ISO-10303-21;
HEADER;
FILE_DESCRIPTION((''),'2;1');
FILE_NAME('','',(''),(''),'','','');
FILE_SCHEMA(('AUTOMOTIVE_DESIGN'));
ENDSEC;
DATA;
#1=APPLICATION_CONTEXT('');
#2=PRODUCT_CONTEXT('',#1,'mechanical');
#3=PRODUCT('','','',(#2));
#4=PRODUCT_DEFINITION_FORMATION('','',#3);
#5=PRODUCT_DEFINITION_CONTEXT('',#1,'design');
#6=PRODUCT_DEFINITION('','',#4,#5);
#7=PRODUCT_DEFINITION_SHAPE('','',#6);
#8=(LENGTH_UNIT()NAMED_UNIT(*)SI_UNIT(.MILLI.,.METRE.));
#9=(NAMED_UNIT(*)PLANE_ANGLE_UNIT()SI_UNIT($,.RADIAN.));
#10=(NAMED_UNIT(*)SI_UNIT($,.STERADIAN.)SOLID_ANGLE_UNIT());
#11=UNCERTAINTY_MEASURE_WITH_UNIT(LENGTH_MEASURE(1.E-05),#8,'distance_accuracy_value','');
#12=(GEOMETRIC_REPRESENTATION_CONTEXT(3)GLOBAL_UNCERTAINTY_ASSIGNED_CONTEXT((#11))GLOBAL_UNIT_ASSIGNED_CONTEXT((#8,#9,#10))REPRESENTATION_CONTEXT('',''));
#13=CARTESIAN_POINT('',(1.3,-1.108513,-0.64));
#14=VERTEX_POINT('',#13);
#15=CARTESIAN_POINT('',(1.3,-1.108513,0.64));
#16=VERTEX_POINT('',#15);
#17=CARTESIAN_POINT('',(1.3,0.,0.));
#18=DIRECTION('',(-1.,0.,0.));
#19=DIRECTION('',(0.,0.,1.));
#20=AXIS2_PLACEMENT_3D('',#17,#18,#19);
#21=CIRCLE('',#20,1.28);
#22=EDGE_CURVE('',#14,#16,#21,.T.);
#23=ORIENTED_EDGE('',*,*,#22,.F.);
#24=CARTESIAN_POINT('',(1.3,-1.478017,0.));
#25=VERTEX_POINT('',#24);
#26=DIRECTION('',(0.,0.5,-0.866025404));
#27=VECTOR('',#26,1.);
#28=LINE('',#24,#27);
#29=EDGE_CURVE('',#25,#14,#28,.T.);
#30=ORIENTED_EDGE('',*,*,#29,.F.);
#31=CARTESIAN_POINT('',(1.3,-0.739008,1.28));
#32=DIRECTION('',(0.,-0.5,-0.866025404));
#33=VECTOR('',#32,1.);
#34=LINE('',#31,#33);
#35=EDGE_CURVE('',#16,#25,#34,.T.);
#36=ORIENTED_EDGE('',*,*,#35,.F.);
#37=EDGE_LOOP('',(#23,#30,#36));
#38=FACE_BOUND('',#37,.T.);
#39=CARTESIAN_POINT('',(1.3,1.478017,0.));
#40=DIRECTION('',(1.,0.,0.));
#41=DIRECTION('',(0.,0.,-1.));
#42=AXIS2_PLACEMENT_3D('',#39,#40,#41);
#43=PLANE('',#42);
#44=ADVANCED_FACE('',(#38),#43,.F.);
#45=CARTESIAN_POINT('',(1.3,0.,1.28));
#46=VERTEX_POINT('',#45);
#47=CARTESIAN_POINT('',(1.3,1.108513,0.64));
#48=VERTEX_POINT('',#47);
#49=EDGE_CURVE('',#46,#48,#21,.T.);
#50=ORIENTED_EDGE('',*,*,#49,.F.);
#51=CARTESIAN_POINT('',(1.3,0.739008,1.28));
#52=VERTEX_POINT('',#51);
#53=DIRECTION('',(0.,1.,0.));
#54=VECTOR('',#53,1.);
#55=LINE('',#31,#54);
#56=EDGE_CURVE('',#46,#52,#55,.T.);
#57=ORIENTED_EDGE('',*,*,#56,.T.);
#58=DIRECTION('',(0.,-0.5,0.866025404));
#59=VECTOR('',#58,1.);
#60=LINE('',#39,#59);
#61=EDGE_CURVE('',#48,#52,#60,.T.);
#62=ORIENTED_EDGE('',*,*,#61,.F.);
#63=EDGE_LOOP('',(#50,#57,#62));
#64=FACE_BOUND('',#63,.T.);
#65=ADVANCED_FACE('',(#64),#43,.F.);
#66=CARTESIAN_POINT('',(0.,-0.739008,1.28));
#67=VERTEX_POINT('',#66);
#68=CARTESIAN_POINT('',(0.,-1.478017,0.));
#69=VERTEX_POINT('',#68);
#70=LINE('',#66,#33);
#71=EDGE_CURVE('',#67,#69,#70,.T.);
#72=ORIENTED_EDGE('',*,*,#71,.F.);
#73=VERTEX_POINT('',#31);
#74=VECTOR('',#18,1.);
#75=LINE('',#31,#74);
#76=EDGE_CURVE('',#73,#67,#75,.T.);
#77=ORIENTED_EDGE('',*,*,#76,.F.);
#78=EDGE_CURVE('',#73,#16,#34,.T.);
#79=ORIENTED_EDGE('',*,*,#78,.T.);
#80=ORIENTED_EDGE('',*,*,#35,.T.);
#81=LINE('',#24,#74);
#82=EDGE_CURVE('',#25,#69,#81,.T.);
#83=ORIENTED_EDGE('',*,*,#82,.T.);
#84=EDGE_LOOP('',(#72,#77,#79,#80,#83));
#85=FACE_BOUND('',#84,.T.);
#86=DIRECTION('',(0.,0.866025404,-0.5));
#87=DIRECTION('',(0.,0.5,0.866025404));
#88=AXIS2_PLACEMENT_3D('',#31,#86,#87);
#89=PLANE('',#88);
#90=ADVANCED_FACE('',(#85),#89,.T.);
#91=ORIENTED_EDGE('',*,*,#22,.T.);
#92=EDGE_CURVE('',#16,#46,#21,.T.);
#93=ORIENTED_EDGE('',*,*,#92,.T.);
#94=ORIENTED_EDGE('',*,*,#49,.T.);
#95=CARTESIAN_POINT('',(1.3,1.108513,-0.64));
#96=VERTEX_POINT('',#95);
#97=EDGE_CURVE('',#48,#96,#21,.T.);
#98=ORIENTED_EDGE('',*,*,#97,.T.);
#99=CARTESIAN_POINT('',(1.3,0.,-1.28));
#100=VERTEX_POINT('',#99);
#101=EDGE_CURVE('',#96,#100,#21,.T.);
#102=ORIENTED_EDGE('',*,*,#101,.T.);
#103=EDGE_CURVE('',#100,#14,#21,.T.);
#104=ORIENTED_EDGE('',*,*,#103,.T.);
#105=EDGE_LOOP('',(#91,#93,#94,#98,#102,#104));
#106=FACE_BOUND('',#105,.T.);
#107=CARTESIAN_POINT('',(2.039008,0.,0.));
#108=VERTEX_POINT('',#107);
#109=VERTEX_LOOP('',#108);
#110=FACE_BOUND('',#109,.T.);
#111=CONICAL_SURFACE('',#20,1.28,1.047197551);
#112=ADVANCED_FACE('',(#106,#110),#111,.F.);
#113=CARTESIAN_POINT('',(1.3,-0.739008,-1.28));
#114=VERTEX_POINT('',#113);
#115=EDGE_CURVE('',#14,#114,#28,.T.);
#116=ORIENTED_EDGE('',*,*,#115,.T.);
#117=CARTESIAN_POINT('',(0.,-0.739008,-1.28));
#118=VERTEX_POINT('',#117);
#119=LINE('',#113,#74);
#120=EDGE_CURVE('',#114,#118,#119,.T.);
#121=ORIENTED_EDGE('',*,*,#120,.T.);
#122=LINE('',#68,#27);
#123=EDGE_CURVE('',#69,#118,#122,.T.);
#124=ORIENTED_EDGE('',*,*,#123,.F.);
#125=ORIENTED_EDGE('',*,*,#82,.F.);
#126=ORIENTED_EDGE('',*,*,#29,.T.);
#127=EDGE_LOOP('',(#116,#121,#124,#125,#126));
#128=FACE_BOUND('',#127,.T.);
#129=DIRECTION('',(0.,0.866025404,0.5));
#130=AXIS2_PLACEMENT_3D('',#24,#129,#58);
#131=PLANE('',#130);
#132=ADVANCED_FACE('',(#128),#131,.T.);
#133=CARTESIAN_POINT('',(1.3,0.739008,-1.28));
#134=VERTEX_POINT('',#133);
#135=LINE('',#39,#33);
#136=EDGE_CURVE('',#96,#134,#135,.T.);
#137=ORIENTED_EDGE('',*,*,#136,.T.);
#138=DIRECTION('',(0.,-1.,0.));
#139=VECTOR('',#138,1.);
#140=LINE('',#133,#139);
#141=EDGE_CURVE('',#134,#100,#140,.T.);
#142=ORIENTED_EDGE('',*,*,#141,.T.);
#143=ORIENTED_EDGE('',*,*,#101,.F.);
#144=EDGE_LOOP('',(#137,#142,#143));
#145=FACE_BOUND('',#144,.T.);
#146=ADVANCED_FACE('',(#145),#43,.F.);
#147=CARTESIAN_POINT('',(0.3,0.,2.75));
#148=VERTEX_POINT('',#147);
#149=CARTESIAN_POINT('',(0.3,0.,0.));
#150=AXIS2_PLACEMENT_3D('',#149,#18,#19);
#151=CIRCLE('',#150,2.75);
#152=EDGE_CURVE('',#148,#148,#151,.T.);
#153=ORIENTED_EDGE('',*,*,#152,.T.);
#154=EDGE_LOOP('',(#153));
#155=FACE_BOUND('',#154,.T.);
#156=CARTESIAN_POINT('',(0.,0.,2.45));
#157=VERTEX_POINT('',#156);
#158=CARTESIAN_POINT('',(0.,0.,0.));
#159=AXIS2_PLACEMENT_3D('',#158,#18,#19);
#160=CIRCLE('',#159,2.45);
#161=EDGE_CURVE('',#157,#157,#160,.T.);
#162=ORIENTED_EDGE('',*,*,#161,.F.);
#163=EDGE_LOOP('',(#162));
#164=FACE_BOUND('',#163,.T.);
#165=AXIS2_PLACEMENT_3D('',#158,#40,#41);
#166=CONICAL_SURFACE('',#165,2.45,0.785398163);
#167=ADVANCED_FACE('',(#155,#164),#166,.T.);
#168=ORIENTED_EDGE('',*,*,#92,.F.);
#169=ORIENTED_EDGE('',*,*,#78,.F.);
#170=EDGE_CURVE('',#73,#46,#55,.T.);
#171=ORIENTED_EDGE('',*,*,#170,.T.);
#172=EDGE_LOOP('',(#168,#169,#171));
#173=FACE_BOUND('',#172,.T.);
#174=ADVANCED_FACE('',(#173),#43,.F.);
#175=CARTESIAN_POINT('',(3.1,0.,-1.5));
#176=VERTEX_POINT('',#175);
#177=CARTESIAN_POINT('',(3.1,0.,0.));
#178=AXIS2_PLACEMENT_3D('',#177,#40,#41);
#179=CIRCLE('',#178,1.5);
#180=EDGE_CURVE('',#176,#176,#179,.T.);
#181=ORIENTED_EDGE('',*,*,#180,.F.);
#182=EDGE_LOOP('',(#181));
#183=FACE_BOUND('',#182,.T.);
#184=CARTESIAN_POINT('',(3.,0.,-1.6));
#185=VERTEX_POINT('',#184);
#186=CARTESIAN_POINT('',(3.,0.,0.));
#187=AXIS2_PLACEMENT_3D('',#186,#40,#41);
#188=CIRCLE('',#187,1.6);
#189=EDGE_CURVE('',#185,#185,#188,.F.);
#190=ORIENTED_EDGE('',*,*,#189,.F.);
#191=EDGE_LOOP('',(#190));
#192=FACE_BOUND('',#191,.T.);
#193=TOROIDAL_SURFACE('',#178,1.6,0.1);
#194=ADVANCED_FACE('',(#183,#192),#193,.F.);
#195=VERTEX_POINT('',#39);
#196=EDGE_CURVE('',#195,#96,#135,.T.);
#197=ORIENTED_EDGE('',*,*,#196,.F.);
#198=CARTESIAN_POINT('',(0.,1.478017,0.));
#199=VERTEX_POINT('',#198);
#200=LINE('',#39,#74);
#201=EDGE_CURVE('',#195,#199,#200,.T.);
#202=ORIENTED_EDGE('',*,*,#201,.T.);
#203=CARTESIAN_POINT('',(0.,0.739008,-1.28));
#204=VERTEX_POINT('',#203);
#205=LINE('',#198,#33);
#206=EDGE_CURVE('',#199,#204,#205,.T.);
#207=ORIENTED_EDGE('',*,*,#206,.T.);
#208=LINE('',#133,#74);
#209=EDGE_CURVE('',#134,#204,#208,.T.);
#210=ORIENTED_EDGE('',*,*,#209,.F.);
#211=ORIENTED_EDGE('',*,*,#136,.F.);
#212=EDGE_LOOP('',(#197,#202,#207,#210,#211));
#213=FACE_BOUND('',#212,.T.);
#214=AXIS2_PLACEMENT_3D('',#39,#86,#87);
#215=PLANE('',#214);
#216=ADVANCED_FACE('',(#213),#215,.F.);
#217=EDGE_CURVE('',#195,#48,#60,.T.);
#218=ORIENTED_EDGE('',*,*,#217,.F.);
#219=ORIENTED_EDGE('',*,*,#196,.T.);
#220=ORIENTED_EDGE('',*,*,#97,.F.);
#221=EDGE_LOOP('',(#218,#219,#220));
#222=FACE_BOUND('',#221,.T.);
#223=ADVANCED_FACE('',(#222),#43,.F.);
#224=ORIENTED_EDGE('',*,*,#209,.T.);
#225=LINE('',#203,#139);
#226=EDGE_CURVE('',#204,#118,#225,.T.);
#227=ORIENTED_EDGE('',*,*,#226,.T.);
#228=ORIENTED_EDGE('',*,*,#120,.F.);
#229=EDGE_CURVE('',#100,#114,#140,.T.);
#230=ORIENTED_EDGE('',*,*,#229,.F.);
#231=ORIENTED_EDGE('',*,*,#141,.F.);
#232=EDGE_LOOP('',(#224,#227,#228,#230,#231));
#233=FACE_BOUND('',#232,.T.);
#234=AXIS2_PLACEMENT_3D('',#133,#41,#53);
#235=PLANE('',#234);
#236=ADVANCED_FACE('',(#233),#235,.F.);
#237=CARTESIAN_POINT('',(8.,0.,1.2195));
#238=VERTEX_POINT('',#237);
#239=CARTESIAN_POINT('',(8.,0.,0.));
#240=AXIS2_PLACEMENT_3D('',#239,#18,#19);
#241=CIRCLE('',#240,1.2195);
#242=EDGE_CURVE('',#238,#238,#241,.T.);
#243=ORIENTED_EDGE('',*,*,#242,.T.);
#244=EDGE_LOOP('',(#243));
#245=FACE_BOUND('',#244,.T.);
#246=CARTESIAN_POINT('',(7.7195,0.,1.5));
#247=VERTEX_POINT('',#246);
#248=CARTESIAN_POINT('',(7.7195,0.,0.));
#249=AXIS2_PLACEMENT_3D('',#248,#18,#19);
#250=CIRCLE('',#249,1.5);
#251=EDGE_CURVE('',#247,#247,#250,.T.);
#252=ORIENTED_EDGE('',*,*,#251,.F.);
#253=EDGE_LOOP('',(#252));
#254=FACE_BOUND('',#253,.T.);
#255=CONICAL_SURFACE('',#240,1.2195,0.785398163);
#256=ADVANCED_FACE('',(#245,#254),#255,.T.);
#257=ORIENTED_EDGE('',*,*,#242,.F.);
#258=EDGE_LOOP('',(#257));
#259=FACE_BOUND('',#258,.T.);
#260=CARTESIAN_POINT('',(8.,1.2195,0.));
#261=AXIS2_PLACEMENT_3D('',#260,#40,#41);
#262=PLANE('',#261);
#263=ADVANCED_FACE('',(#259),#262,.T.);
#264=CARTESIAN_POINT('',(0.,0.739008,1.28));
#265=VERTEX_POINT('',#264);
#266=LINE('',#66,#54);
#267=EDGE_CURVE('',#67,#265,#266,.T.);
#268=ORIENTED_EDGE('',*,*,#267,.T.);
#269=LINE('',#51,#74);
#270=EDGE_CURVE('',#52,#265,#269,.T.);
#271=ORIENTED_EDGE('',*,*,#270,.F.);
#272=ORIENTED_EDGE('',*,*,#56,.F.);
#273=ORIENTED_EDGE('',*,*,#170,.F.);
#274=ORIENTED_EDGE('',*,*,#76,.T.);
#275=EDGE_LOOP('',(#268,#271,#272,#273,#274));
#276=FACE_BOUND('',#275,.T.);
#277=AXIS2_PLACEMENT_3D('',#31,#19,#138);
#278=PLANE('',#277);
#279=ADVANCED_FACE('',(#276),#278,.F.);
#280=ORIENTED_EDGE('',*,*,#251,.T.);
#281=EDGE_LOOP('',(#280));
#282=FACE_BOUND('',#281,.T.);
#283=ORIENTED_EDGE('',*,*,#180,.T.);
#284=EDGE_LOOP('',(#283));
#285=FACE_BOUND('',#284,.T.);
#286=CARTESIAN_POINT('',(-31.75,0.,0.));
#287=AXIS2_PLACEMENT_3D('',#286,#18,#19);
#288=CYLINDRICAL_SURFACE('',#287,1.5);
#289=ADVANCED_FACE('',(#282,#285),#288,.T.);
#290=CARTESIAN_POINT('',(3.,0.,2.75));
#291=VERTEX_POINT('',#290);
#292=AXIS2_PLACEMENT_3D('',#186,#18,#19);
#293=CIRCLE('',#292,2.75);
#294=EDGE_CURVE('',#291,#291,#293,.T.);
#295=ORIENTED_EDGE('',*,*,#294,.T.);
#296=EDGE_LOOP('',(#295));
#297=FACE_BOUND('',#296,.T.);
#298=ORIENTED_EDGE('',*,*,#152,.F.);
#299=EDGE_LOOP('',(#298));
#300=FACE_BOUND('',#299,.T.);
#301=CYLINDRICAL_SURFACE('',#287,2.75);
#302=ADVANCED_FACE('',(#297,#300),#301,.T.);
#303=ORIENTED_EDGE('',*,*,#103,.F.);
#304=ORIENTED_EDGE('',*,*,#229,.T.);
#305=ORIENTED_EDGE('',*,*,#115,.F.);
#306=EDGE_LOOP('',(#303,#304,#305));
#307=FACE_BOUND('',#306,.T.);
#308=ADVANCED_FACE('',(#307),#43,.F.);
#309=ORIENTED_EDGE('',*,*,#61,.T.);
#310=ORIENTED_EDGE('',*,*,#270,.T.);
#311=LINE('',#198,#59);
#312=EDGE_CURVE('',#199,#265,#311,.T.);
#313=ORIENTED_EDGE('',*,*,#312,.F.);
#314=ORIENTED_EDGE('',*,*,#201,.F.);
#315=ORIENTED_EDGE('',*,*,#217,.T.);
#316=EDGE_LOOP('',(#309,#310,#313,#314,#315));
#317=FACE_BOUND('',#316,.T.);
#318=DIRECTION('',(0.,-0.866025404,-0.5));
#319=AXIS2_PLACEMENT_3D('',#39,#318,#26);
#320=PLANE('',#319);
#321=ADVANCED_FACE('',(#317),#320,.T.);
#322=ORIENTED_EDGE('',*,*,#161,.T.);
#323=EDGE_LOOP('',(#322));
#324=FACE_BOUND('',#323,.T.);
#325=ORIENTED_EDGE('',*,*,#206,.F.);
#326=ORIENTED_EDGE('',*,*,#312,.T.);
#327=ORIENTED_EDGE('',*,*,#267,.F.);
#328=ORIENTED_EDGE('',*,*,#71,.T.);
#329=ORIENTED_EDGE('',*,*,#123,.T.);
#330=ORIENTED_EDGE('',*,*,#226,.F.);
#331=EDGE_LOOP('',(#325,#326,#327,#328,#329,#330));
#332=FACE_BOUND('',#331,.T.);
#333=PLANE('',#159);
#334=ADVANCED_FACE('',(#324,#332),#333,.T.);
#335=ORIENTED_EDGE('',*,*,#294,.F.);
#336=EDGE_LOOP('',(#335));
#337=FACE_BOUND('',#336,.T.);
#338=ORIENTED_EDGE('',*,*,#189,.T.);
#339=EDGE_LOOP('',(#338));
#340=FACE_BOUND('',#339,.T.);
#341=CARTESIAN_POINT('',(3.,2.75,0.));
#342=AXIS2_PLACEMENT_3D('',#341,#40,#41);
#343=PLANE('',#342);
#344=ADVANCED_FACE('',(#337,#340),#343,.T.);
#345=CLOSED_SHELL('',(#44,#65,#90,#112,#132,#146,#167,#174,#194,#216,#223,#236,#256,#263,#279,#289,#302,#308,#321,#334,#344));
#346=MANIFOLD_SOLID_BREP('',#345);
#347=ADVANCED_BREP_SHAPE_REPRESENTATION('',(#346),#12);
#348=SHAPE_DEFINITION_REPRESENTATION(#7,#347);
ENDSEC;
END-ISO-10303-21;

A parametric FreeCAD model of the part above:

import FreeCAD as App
import Part
import Sketcher
Q = App.Units.Quantity


def edges_at(feature, points):
    """Names of the edges that pass closest to the given points."""
    edges = feature.Shape.Edges
    near = lambda p: min(range(len(edges)), key=lambda i: edges[i].distToShape(Part.Vertex(*p))[0])
    return sorted({f"Edge{near(p) + 1}" for p in points})

doc = App.newDocument("Part")
params = doc.addObject("Spreadsheet::Sheet", "Params")
for row, (alias, value) in enumerate([
    ("sketch1_width", "8 mm"),
    ("sketch1_width2", "2.7 mm"),
    ("sketch1_height", "2.45 mm"),
    ("sketch1_height2", "1.25 mm"),
    ("revolution_angle", "360 deg"),
    ("fillet_radius", "0.1 mm"),
    ("sketch2_width", "1.3 mm"),
    ("sketch2_height", "1.28 mm"),
    ("groove_angle", "360 deg"),
    ("pocket1_length", "1.3 mm"),
], start=1):
    params.set(f"A{row}", alias)
    params.set(f"B{row}", "=" + value)
    params.setAlias(f"B{row}", alias)

body = doc.addObject("PartDesign::Body", "Body")

sketch1 = body.newObject("Sketcher::SketchObject", "Sketch")
sketch1.AttachmentSupport = (doc.getObject("XY_Plane"), [""])
sketch1.MapMode = "FlatFace"
sketch1.addGeometry([
    Part.LineSegment(App.Vector(0, 2.45, 0), App.Vector(0, 0, 0)),
    Part.LineSegment(App.Vector(0, 0, 0), App.Vector(8, 0, 0)),
    Part.LineSegment(App.Vector(8, 0, 0), App.Vector(8, 1.22, 0)),
    Part.LineSegment(App.Vector(8, 1.22, 0), App.Vector(7.72, 1.5, 0)),
    Part.LineSegment(App.Vector(7.72, 1.5, 0), App.Vector(3, 1.5, 0)),
    Part.LineSegment(App.Vector(3, 1.5, 0), App.Vector(3, 2.75, 0)),
    Part.LineSegment(App.Vector(3, 2.75, 0), App.Vector(0.3, 2.75, 0)),
    Part.LineSegment(App.Vector(0.3, 2.75, 0), App.Vector(0, 2.45, 0)),
], False)
sketch1.addConstraint([
    Sketcher.Constraint("Coincident", 0, 2, 1, 1),
    Sketcher.Constraint("Coincident", 1, 2, 2, 1),
    Sketcher.Constraint("Coincident", 2, 2, 3, 1),
    Sketcher.Constraint("Coincident", 3, 2, 4, 1),
    Sketcher.Constraint("Coincident", 4, 2, 5, 1),
    Sketcher.Constraint("Coincident", 5, 2, 6, 1),
    Sketcher.Constraint("Coincident", 6, 2, 7, 1),
    Sketcher.Constraint("Coincident", 7, 2, 0, 1),
    Sketcher.Constraint("Vertical", 0),
    Sketcher.Constraint("Horizontal", 1),
    Sketcher.Constraint("Vertical", 2),
    Sketcher.Constraint("Horizontal", 4),
    Sketcher.Constraint("Vertical", 5),
    Sketcher.Constraint("Horizontal", 6),
    Sketcher.Constraint("Coincident", 0, 2, -1, 1),
    Sketcher.Constraint("Perpendicular", 3, 7),
    Sketcher.Constraint("DistanceX", 1, 1, 1, 2, Q("8 mm")),
    Sketcher.Constraint("Angle", 3, Q("135 deg")),
    Sketcher.Constraint("DistanceX", 6, 2, 6, 1, Q("2.7 mm")),
    Sketcher.Constraint("DistanceX", -1, 1, 4, 2, Q("3 mm")),
    Sketcher.Constraint("DistanceY", 0, 2, 0, 1, Q("2.45 mm")),
    Sketcher.Constraint("DistanceY", 5, 1, 5, 2, Q("1.25 mm")),
    Sketcher.Constraint("DistanceX", 4, 2, 4, 1, Q("4.7195 mm")),
])
sketch1.setExpression("Constraints[16]", "Params.sketch1_width")
sketch1.setExpression("Constraints[18]", "Params.sketch1_width2")
sketch1.setExpression("Constraints[20]", "Params.sketch1_height")
sketch1.setExpression("Constraints[21]", "Params.sketch1_height2")
revolution = body.newObject("PartDesign::Revolution", "Revolution")
revolution.Profile = sketch1
revolution.ReferenceAxis = (sketch1, ["H_Axis"])
revolution.setExpression("Angle", "Params.revolution_angle")
doc.recompute()

fillet = body.newObject("PartDesign::Fillet", "Fillet")
fillet.Base = (revolution, edges_at(revolution, [(3, -1.5, 0)]))
fillet.setExpression("Radius", "Params.fillet_radius")

sketch2 = body.newObject("Sketcher::SketchObject", "Sketch001")
sketch2.AttachmentSupport = (doc.getObject("XY_Plane"), [""])
sketch2.MapMode = "FlatFace"
sketch2.addGeometry([
    Part.LineSegment(App.Vector(1.3, 1.3, 0), App.Vector(0, 1.3, 0)),
    Part.LineSegment(App.Vector(0, 1.3, 0), App.Vector(0, 0, 0)),
    Part.LineSegment(App.Vector(0, 0, 0), App.Vector(2, 0, 0)),
    Part.LineSegment(App.Vector(2, 0, 0), App.Vector(1.3, 1.3, 0)),
], False)
sketch2.addConstraint([
    Sketcher.Constraint("Coincident", 0, 2, 1, 1),
    Sketcher.Constraint("Coincident", 1, 2, 2, 1),
    Sketcher.Constraint("Coincident", 2, 2, 3, 1),
    Sketcher.Constraint("Coincident", 3, 2, 0, 1),
    Sketcher.Constraint("Horizontal", 0),
    Sketcher.Constraint("Vertical", 1),
    Sketcher.Constraint("Horizontal", 2),
    Sketcher.Constraint("Coincident", 1, 2, -1, 1),
    Sketcher.Constraint("Angle", 3, Q("120 deg")),
    Sketcher.Constraint("DistanceX", 0, 2, 0, 1, Q("1.3 mm")),
    Sketcher.Constraint("DistanceY", 1, 2, 1, 1, Q("1.28 mm")),
])
sketch2.setExpression("Constraints[9]", "Params.sketch2_width")
sketch2.setExpression("Constraints[10]", "Params.sketch2_height")
groove = body.newObject("PartDesign::Groove", "Groove")
groove.Profile = sketch2
groove.ReferenceAxis = (sketch2, ["H_Axis"])
groove.setExpression("Angle", "Params.groove_angle")

sketch3 = body.newObject("Sketcher::SketchObject", "Sketch002")
sketch3.AttachmentSupport = (doc.getObject("YZ_Plane"), [""])
sketch3.MapMode = "FlatFace"
sketch3.addGeometry([
    Part.LineSegment(App.Vector(1.5, 0, 0), App.Vector(0.7, -1.3, 0)),
    Part.LineSegment(App.Vector(0.7, -1.3, 0), App.Vector(-0.7, -1.3, 0)),
    Part.LineSegment(App.Vector(-0.7, -1.3, 0), App.Vector(-1.5, 0, 0)),
    Part.LineSegment(App.Vector(-1.5, 0, 0), App.Vector(-0.7, 1.3, 0)),
    Part.LineSegment(App.Vector(-0.7, 1.3, 0), App.Vector(0.7, 1.3, 0)),
    Part.LineSegment(App.Vector(0.7, 1.3, 0), App.Vector(1.5, 0, 0)),
], False)
sketch3.addConstraint([
    Sketcher.Constraint("Coincident", 0, 2, 1, 1),
    Sketcher.Constraint("Coincident", 1, 2, 2, 1),
    Sketcher.Constraint("Coincident", 2, 2, 3, 1),
    Sketcher.Constraint("Coincident", 3, 2, 4, 1),
    Sketcher.Constraint("Coincident", 4, 2, 5, 1),
    Sketcher.Constraint("Coincident", 5, 2, 0, 1),
    Sketcher.Constraint("Horizontal", 1),
    Sketcher.Constraint("Horizontal", 4),
    Sketcher.Constraint("Symmetric", 0, 2, 3, 2, -1, 1),
    Sketcher.Constraint("Symmetric", 2, 2, 5, 2, -1, 1),
    Sketcher.Constraint("PointOnObject", 2, 2, -1),
    Sketcher.Constraint("Parallel", 2, 5),
    Sketcher.Constraint("Vertical", 1, 2, 3, 2),
    Sketcher.Constraint("Angle", 0, Q("-120 deg")),
    Sketcher.Constraint("DistanceY", 0, 2, -1, 1, Q("1.28 mm")),
    Sketcher.Constraint("DistanceX", 1, 2, 1, 1, Q("1.478017 mm")),
])
pocket1 = body.newObject("PartDesign::Pocket", "Pocket")
pocket1.Profile = sketch3
pocket1.setExpression("Length", "Params.pocket1_length")
pocket1.Reversed = True

doc.recompute()
